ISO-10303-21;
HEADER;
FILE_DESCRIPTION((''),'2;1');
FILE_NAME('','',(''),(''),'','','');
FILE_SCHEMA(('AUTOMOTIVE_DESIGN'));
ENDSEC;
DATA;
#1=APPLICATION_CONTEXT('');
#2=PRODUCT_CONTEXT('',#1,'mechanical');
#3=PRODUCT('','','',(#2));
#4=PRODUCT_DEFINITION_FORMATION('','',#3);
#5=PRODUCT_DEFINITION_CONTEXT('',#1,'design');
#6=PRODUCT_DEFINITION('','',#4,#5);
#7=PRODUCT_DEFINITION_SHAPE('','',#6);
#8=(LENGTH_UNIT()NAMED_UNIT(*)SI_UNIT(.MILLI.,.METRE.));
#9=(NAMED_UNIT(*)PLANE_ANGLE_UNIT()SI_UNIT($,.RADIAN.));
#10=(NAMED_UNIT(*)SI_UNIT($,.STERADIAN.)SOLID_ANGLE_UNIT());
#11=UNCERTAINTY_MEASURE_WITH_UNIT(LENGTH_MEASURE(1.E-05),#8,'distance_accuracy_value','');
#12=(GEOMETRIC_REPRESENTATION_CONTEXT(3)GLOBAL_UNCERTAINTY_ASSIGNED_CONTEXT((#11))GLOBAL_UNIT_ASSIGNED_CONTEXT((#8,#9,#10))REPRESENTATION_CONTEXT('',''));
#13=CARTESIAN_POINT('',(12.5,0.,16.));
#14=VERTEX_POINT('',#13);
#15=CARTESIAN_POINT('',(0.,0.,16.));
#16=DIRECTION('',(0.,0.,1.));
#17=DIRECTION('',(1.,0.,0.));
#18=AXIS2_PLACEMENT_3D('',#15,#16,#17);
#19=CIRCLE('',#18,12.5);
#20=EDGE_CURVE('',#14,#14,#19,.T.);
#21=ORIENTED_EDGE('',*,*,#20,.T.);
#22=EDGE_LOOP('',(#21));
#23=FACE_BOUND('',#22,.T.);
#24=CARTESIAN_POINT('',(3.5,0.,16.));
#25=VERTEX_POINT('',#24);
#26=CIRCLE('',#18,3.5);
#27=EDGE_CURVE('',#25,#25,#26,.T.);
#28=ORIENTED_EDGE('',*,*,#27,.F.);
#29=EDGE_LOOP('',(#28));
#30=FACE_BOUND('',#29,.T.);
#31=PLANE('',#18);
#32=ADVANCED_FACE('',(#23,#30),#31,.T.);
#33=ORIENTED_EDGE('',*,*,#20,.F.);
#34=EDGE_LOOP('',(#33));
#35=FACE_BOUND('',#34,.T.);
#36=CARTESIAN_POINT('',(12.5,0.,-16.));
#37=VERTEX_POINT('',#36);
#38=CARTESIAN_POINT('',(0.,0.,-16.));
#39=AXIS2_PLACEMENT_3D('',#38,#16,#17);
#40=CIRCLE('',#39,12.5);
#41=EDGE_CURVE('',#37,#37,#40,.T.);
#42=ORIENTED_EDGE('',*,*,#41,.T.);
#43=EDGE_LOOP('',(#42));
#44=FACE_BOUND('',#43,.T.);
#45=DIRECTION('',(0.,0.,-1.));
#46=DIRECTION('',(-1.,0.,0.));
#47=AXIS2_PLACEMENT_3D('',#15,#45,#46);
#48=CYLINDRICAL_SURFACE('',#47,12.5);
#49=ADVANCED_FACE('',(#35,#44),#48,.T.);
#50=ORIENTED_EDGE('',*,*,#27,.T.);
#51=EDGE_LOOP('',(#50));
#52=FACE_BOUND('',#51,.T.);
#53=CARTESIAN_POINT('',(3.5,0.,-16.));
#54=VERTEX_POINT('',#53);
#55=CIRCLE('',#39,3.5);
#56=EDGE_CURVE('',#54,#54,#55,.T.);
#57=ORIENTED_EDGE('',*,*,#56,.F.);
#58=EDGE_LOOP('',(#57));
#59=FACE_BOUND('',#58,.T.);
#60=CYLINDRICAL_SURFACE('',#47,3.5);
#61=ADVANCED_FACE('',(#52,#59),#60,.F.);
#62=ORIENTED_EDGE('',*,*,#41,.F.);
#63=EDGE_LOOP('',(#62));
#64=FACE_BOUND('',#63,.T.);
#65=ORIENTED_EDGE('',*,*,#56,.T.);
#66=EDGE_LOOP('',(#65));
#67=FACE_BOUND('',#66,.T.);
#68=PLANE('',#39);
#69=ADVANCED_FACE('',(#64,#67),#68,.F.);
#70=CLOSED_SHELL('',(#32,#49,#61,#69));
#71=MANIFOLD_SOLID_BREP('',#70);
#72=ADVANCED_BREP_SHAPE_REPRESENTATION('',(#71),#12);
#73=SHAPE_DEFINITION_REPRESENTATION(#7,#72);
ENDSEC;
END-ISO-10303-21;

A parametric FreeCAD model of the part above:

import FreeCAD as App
import Part
import Sketcher

V = App.Vector
Q = App.Units.Quantity

doc = App.newDocument("Part")
body = doc.addObject("PartDesign::Body", "Body")

sketch1 = body.newObject("Sketcher::SketchObject", "Sketch")
sketch1.AttachmentSupport = (doc.getObject("XY_Plane"), [""])
sketch1.MapMode = "FlatFace"
sketch1.addGeometry(Part.Circle(V(0, 0, 0), V(0, 0, 1), 12.5), False)
sketch1.addGeometry(Part.Circle(V(0, 0, 0), V(0, 0, 1), 3.5), False)
sketch1.addConstraint(Sketcher.Constraint("Coincident", 0, 3, -1, 1))
sketch1.addConstraint(Sketcher.Constraint("Coincident", 1, 3, -1, 1))
sketch1.addConstraint(Sketcher.Constraint("Diameter", 0, Q("25 mm")))
sketch1.addConstraint(Sketcher.Constraint("Diameter", 1, Q("7 mm")))
pad1 = body.newObject("PartDesign::Pad", "Pad")
pad1.Profile = sketch1
pad1.Length = 32
pad1.Midplane = True

doc.recompute()
